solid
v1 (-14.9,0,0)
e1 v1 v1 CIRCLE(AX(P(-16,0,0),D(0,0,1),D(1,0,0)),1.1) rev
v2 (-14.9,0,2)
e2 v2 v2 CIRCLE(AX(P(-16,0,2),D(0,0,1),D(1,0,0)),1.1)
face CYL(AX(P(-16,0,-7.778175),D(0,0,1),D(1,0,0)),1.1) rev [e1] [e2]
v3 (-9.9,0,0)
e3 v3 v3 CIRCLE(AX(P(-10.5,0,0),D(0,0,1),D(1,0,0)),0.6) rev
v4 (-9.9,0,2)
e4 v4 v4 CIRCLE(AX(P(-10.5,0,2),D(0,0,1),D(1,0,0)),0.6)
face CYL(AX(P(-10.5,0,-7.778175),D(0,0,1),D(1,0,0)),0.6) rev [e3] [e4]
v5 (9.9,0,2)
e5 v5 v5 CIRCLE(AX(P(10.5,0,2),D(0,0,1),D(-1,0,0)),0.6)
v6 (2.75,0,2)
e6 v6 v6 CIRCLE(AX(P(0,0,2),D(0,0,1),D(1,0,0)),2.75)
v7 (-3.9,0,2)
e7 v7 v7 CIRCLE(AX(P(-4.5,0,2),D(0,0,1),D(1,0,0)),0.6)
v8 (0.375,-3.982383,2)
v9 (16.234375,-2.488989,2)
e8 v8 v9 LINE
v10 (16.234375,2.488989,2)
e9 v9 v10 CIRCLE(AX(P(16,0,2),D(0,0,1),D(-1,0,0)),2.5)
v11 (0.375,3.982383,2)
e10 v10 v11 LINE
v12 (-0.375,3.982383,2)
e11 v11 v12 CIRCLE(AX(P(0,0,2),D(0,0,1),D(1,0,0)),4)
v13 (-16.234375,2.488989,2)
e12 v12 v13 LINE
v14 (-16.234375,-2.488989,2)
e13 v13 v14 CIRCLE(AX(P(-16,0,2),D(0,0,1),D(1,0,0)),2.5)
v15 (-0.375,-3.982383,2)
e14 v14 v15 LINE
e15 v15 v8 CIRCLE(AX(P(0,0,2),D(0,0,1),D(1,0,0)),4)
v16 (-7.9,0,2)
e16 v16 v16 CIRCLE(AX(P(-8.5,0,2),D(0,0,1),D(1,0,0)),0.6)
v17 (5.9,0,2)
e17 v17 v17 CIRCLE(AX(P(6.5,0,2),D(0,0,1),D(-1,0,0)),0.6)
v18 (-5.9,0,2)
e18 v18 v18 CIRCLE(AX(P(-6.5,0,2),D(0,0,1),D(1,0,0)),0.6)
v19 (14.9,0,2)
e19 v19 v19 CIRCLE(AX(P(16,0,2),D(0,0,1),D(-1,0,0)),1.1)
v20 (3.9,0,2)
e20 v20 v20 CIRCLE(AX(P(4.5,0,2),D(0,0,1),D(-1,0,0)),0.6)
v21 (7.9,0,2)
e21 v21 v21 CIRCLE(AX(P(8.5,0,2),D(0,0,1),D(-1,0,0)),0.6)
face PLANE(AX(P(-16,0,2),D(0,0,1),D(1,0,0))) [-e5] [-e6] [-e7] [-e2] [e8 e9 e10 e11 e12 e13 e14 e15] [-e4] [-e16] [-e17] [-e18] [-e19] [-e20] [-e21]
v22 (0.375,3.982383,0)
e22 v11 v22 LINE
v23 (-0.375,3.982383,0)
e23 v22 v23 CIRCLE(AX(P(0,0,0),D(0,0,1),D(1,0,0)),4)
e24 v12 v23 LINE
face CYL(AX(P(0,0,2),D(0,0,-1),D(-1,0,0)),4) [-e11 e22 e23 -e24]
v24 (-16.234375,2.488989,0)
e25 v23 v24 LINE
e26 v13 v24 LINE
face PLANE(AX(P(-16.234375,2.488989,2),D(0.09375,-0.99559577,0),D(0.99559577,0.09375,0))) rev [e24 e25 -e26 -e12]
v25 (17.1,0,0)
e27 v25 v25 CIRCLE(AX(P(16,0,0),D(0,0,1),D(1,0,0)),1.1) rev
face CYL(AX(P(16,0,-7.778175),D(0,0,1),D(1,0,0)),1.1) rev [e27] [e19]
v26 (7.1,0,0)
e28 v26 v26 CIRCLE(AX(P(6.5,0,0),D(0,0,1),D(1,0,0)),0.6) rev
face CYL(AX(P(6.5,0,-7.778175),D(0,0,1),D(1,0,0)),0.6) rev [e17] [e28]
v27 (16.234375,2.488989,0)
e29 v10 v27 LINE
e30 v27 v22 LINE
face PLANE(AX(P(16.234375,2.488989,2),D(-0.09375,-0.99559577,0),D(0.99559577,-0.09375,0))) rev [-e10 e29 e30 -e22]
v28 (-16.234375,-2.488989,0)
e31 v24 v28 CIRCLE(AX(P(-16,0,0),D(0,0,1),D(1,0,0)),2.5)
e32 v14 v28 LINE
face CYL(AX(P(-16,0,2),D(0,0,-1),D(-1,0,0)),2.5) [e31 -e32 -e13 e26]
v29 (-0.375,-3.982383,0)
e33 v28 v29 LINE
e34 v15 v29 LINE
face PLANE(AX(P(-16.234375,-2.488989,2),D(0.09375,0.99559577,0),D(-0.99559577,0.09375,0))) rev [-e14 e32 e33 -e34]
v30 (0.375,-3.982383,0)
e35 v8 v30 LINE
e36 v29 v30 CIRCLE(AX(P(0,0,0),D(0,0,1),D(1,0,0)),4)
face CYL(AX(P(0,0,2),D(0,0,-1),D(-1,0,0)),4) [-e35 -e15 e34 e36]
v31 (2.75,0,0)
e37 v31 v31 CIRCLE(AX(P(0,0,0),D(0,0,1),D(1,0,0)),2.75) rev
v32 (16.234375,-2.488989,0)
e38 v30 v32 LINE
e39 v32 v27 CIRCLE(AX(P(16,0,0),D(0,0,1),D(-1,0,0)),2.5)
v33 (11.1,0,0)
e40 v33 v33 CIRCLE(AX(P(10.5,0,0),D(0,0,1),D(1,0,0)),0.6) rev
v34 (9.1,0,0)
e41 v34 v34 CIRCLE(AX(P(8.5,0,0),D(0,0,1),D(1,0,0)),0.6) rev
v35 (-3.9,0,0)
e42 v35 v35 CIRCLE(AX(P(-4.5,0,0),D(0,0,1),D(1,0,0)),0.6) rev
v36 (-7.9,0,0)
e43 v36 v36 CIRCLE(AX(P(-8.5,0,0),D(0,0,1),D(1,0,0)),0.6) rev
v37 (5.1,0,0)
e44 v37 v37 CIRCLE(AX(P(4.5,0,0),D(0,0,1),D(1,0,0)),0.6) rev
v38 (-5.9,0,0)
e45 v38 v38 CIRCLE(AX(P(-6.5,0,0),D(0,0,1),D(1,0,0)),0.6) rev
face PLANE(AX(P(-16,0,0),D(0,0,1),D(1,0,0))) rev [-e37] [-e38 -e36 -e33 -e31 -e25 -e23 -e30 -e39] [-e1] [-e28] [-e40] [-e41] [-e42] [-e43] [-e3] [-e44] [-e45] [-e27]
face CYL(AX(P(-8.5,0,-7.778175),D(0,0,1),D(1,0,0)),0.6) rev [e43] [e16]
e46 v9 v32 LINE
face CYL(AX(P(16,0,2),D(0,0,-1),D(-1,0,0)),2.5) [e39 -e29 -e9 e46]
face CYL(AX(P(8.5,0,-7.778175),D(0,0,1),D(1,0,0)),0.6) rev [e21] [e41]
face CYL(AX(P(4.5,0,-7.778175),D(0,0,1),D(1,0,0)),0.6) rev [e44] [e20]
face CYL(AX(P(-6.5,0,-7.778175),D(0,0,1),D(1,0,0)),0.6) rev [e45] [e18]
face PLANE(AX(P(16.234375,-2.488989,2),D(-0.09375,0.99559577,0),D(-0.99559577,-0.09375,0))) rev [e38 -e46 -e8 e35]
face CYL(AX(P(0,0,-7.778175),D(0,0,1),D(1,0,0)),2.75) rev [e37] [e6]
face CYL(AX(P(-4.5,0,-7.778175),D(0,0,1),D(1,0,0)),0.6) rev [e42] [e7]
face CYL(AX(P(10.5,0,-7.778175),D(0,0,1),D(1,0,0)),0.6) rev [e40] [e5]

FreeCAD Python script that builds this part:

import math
import FreeCAD as App
import Part
import Sketcher
Q = App.Units.Quantity

doc = App.newDocument("Part")
params = doc.addObject("Spreadsheet::Sheet", "Params")
for row, (alias, value) in enumerate([
    ("sketch1_radius", "4 mm"),
    ("sketch1_radius2", "2.5 mm"),
    ("pad1_length", "2 mm"),
    ("sketch2_diameter", "5.5 mm"),
    ("sketch2_diameter2", "2.2 mm"),
    ("sketch2_diameter3", "1.2 mm"),
    ("pocket1_length", "2 mm"),
], start=1):
    params.set(f"A{row}", alias)
    params.set(f"B{row}", "=" + value)
    params.setAlias(f"B{row}", alias)

body = doc.addObject("PartDesign::Body", "Body")

# Sketch on XY plane
sketch1 = body.newObject("Sketcher::SketchObject", "Sketch")
sketch1.AttachmentSupport = (doc.getObject("XY_Plane"), [""])
sketch1.MapMode = "FlatFace"
sketch1.addGeometry([
    Part.LineSegment(App.Vector(-0.375, 3.982383, 0), App.Vector(-16.234375, 2.488989, 0)),  # 0
    Part.ArcOfCircle(Part.Circle(App.Vector(-16, 0, 0), App.Vector(0, 0, 1), 2.5), math.radians(95.379379), math.radians(264.620621)),  # 1
    Part.LineSegment(App.Vector(-16.234375, -2.488989, 0), App.Vector(-0.375, -3.982383, 0)),  # 2
    Part.ArcOfCircle(Part.Circle(App.Vector(0, 0, 0), App.Vector(0, 0, 1), 4), math.radians(-95.379379), math.radians(-84.620621)),  # 3
    Part.LineSegment(App.Vector(0.375, -3.982383, 0), App.Vector(16.234375, -2.488989, 0)),  # 4
    Part.ArcOfCircle(Part.Circle(App.Vector(16, 0, 0), App.Vector(0, 0, 1), 2.5), math.radians(-84.620621), math.radians(84.620621)),  # 5
    Part.LineSegment(App.Vector(16.234375, 2.488989, 0), App.Vector(0.375, 3.982383, 0)),  # 6
    Part.ArcOfCircle(Part.Circle(App.Vector(0, 0, 0), App.Vector(0, 0, 1), 4), math.radians(84.620621), math.radians(95.379379)),  # 7
], False)
sketch1.addConstraint([
    Sketcher.Constraint("Tangent", 0, 2, 1, 1),
    Sketcher.Constraint("Tangent", 1, 2, 2, 1),
    Sketcher.Constraint("Tangent", 2, 2, 3, 1),
    Sketcher.Constraint("Tangent", 3, 2, 4, 1),
    Sketcher.Constraint("Tangent", 4, 2, 5, 1),
    Sketcher.Constraint("Tangent", 5, 2, 6, 1),
    Sketcher.Constraint("Tangent", 6, 2, 7, 1),
    Sketcher.Constraint("Tangent", 7, 2, 0, 1),
    Sketcher.Constraint("Coincident", 3, 3, -1, 1),
    Sketcher.Constraint("Coincident", 7, 3, -1, 1),
    Sketcher.Constraint("Equal", 1, 5),
    Sketcher.Constraint("Equal", 3, 7),
    Sketcher.Constraint("Symmetric", 1, 3, 5, 3, -1, 1),
    Sketcher.Constraint("PointOnObject", 1, 3, -1),
    Sketcher.Constraint("Radius", 3, Q("4 mm")),
    Sketcher.Constraint("Radius", 1, Q("2.5 mm")),
    Sketcher.Constraint("DistanceX", 1, 3, -1, 1, Q("16 mm")),
])
sketch1.setExpression("Constraints[14]", "Params.sketch1_radius")
sketch1.setExpression("Constraints[15]", "Params.sketch1_radius2")
pad1 = body.newObject("PartDesign::Pad", "Pad")
pad1.Profile = sketch1
pad1.setExpression("Length", "Params.pad1_length")

# Sketch on XY plane
sketch2 = body.newObject("Sketcher::SketchObject", "Sketch001")
sketch2.AttachmentSupport = (doc.getObject("XY_Plane"), [""])
sketch2.MapMode = "FlatFace"
sketch2.AttachmentOffset = App.Placement(App.Vector(0, 0, 2), App.Rotation())
sketch2.addGeometry([
    Part.Circle(App.Vector(0, 0, 0), App.Vector(0, 0, 1), 2.75),  # 0
    Part.Circle(App.Vector(-16, 0, 0), App.Vector(0, 0, 1), 1.1),  # 1
    Part.Circle(App.Vector(16, 0, 0), App.Vector(0, 0, 1), 1.1),  # 2
    Part.Circle(App.Vector(-4.5, 0, 0), App.Vector(0, 0, 1), 0.6),  # 3
    Part.Circle(App.Vector(-6.5, 0, 0), App.Vector(0, 0, 1), 0.6),  # 4
    Part.Circle(App.Vector(-8.5, 0, 0), App.Vector(0, 0, 1), 0.6),  # 5
    Part.Circle(App.Vector(-10.5, 0, 0), App.Vector(0, 0, 1), 0.6),  # 6
    Part.Circle(App.Vector(4.5, 0, 0), App.Vector(0, 0, 1), 0.6),  # 7
    Part.Circle(App.Vector(10.5, 0, 0), App.Vector(0, 0, 1), 0.6),  # 8
    Part.Circle(App.Vector(8.5, 0, 0), App.Vector(0, 0, 1), 0.6),  # 9
    Part.Circle(App.Vector(6.5, 0, 0), App.Vector(0, 0, 1), 0.6),  # 10
], False)
sketch2.addConstraint([
    Sketcher.Constraint("Coincident", 0, 3, -1, 1),
    Sketcher.Constraint("Equal", 1, 2),
    Sketcher.Constraint("Equal", 3, 4),
    Sketcher.Constraint("Equal", 4, 5),
    Sketcher.Constraint("Equal", 5, 6),
    Sketcher.Constraint("Equal", 6, 7),
    Sketcher.Constraint("Equal", 7, 8),
    Sketcher.Constraint("Equal", 8, 9),
    Sketcher.Constraint("Equal", 9, 10),
    Sketcher.Constraint("Symmetric", 1, 3, 2, 3, -1, 1),
    Sketcher.Constraint("Symmetric", 3, 3, 7, 3, -1, 1),
    Sketcher.Constraint("Symmetric", 6, 3, 8, 3, -1, 1),
    Sketcher.Constraint("Symmetric", 5, 3, 9, 3, -1, 1),
    Sketcher.Constraint("Symmetric", 4, 3, 10, 3, -1, 1),
    Sketcher.Constraint("PointOnObject", 1, 3, -1),
    Sketcher.Constraint("PointOnObject", 3, 3, -1),
    Sketcher.Constraint("PointOnObject", 4, 3, -1),
    Sketcher.Constraint("PointOnObject", 5, 3, -1),
    Sketcher.Constraint("PointOnObject", 6, 3, -1),
    Sketcher.Constraint("Diameter", 0, Q("5.5 mm")),
    Sketcher.Constraint("Diameter", 1, Q("2.2 mm")),
    Sketcher.Constraint("Diameter", 3, Q("1.2 mm")),
    Sketcher.Constraint("DistanceX", 1, 3, -1, 1, Q("16 mm")),
    Sketcher.Constraint("DistanceX", 4, 3, 3, 3, Q("2 mm")),
    Sketcher.Constraint("DistanceX", 5, 3, 4, 3, Q("2 mm")),
    Sketcher.Constraint("DistanceX", 6, 3, 5, 3, Q("2 mm")),
    Sketcher.Constraint("DistanceX", 3, 3, 7, 3, Q("9 mm")),
])
sketch2.setExpression("Constraints[19]", "Params.sketch2_diameter")
sketch2.setExpression("Constraints[20]", "Params.sketch2_diameter2")
sketch2.setExpression("Constraints[21]", "Params.sketch2_diameter3")
pocket1 = body.newObject("PartDesign::Pocket", "Pocket")
pocket1.Profile = sketch2
pocket1.setExpression("Length", "Params.pocket1_length")

doc.recompute()
